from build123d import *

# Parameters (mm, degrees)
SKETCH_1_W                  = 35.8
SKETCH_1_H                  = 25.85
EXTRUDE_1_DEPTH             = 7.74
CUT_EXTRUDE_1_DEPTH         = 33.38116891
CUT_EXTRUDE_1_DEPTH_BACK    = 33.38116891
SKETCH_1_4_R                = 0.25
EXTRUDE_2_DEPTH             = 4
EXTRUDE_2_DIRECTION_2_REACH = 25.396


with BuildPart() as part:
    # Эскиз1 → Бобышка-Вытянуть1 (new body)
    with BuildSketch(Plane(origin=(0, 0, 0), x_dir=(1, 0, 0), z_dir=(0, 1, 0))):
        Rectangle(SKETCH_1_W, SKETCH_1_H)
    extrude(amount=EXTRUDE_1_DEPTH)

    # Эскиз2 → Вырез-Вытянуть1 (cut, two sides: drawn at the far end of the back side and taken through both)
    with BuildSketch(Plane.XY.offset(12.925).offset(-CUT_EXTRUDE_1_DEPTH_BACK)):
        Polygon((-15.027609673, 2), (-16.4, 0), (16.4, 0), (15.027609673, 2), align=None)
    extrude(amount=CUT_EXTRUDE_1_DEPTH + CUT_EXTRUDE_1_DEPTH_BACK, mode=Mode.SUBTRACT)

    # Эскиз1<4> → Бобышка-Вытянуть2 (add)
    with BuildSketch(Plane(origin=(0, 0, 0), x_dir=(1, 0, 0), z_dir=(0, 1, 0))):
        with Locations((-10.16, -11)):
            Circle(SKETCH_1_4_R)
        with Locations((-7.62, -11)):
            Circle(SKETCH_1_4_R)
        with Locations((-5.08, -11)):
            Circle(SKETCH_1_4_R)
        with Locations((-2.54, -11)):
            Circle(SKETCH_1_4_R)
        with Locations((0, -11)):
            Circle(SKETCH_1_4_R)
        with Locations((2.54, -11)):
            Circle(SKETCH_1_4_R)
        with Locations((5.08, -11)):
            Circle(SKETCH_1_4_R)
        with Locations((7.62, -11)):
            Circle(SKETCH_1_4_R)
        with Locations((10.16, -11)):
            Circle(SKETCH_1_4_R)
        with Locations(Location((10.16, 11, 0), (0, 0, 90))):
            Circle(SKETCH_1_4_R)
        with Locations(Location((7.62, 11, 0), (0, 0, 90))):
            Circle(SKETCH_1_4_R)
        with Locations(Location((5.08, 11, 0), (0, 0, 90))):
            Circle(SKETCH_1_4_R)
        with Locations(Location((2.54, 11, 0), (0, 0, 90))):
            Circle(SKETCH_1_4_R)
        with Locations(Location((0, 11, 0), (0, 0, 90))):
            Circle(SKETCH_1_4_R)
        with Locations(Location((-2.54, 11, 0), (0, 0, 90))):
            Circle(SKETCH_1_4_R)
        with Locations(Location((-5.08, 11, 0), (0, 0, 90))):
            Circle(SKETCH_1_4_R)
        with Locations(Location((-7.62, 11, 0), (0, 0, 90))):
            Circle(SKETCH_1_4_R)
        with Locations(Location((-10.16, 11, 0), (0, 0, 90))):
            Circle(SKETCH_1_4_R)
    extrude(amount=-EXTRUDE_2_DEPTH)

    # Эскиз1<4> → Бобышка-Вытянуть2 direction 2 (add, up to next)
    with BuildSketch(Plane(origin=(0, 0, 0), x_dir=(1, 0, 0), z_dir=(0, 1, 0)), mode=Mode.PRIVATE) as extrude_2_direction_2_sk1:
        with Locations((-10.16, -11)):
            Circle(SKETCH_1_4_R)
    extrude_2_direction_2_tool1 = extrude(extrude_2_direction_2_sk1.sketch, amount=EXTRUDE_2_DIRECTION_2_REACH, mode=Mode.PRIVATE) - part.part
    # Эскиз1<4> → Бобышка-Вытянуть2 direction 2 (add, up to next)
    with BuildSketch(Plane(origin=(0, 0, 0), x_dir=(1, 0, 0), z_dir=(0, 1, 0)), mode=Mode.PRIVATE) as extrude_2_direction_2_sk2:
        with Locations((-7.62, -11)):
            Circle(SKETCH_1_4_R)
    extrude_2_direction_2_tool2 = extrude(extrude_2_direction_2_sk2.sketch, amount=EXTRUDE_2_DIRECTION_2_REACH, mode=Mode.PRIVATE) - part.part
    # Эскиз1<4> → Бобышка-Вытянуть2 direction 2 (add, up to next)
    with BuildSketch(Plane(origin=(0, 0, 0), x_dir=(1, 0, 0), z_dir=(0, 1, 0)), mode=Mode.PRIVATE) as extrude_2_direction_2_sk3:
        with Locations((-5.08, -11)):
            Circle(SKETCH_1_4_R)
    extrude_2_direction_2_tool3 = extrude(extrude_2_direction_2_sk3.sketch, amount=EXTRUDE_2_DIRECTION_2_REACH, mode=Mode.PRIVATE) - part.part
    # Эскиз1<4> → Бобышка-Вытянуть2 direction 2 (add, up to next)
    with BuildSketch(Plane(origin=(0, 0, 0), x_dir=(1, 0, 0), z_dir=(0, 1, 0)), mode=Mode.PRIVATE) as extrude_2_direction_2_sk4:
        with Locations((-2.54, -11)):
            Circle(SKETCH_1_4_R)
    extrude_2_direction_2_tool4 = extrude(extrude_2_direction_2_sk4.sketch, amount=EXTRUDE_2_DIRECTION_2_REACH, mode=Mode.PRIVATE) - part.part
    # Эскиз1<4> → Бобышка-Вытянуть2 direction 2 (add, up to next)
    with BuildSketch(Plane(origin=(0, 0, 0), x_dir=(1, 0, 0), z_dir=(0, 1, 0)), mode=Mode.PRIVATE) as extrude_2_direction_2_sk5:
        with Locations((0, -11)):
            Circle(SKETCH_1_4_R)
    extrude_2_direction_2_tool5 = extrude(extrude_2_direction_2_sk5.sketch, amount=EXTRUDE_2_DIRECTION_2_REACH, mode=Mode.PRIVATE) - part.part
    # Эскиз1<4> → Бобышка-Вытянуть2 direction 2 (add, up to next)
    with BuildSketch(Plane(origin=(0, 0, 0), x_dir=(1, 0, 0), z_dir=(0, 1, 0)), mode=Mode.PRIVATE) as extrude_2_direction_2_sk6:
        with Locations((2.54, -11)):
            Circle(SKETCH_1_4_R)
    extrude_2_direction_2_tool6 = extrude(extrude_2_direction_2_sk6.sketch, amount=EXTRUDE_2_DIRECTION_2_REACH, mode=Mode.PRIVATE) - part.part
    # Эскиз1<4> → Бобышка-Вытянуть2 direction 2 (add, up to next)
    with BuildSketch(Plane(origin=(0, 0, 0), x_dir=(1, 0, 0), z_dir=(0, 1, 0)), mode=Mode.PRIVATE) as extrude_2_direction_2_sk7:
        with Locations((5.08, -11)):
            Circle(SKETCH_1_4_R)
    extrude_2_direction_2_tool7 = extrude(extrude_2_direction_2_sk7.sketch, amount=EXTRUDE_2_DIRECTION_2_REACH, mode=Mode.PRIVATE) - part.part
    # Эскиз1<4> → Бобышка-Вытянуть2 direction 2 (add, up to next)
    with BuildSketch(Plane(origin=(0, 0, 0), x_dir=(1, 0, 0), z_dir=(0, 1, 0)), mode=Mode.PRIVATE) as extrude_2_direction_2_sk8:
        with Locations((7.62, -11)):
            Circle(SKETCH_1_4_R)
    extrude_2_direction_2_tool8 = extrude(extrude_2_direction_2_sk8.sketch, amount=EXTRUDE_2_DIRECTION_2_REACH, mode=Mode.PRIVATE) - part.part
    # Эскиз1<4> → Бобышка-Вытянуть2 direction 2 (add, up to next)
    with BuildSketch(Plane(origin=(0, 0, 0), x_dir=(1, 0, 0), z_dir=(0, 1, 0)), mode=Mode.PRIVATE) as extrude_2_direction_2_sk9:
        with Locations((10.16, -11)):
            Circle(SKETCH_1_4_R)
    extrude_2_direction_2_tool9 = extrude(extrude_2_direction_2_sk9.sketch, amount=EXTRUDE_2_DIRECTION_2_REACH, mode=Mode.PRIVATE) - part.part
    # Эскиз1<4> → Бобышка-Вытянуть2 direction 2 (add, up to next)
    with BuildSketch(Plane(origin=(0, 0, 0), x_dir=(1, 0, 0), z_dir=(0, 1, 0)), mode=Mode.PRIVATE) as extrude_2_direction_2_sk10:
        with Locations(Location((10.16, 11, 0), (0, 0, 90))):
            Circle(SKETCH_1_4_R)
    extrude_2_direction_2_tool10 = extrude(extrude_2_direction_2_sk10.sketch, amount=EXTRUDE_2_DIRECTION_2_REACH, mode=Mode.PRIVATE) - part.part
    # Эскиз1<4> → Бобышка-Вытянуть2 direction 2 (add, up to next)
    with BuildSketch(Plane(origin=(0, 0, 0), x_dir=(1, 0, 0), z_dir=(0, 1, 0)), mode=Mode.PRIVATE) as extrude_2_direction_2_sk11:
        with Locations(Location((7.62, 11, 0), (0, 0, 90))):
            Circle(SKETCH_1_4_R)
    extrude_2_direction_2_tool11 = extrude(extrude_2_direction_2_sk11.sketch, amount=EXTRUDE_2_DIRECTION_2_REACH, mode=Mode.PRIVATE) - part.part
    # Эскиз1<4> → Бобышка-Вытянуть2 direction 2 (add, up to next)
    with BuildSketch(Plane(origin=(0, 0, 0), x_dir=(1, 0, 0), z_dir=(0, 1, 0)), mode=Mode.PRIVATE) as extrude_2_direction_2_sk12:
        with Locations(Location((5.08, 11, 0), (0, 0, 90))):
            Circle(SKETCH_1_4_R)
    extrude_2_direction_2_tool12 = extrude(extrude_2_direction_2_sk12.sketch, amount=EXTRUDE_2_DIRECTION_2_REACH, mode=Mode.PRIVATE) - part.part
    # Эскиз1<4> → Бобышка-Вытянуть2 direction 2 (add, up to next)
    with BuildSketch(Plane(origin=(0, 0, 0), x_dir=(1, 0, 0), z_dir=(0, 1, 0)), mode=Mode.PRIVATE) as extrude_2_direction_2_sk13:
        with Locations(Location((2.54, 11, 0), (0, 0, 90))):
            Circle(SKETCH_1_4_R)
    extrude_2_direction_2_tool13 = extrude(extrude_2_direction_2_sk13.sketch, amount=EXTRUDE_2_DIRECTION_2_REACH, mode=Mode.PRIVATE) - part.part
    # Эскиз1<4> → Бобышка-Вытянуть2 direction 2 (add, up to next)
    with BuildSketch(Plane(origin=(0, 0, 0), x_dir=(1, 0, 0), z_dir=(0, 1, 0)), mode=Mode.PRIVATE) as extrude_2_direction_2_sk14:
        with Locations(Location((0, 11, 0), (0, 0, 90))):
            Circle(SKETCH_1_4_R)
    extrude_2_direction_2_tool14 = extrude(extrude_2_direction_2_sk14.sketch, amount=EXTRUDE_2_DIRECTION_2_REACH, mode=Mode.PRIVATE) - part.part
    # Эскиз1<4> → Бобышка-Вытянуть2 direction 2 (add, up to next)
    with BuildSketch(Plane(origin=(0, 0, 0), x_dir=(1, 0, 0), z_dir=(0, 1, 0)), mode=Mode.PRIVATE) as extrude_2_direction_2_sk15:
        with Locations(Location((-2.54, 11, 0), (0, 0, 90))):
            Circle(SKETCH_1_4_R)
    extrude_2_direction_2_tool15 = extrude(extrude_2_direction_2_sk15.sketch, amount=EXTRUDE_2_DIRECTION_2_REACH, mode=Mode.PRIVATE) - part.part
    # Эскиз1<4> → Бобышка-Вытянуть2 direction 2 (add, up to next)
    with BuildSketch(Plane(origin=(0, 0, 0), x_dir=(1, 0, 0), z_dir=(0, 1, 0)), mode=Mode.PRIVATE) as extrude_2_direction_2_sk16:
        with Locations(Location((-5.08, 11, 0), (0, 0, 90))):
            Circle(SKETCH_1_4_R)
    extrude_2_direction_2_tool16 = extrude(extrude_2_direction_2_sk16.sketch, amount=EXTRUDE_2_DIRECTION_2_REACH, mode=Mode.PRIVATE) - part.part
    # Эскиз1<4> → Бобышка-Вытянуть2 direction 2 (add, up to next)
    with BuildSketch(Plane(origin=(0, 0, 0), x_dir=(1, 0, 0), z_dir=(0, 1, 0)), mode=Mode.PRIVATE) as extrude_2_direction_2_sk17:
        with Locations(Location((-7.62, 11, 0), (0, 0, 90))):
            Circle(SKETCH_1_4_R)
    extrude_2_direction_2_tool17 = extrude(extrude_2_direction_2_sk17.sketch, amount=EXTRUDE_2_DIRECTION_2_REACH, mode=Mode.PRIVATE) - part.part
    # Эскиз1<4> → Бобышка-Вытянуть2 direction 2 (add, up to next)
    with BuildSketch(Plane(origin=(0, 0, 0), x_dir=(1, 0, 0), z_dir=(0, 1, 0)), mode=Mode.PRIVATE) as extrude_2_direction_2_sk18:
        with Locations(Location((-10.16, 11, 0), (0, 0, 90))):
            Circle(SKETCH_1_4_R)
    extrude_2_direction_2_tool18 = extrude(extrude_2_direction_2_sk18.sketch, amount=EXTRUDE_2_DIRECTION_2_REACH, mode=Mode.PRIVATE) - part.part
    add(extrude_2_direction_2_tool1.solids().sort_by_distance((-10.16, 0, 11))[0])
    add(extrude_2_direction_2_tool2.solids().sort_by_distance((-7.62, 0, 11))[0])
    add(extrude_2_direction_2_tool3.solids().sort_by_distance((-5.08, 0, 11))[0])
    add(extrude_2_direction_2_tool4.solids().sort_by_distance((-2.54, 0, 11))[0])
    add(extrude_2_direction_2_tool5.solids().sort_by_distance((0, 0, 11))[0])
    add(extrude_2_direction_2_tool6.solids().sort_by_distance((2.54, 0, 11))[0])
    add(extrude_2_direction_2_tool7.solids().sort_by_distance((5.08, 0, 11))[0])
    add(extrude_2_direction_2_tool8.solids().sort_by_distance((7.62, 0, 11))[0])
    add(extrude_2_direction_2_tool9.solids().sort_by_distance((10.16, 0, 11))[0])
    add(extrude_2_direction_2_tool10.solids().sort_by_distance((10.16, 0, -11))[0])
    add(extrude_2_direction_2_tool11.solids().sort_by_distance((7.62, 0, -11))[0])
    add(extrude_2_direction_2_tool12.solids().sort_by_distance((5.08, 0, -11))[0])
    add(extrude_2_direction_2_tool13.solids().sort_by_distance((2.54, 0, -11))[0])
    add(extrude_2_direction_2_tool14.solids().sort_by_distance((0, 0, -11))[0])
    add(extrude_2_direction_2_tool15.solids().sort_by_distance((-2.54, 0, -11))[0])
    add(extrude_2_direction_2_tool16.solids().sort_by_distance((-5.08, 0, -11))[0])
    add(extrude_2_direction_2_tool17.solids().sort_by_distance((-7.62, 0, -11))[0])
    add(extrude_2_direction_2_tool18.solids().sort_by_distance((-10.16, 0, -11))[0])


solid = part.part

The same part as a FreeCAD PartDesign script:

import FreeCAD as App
import Part
import Sketcher

V = App.Vector
Q = App.Units.Quantity


def add_polygon(sketch, points):
    """Adds a closed chain of lines whose ends are joined by coincident constraints."""
    first, n = sketch.GeometryCount, len(points)
    for a, b in zip(points, points[1:] + points[:1]):
        sketch.addGeometry(Part.LineSegment(App.Vector(*a, 0), App.Vector(*b, 0)), False)
    for i in range(n):
        sketch.addConstraint(Sketcher.Constraint("Coincident", first + i, 2, first + (i + 1) % n, 1))

doc = App.newDocument("Part")
params = doc.addObject("Spreadsheet::Sheet", "Params")
for row, (alias, value) in enumerate([
    ("sketch1_width", "35.8 mm"),
    ("sketch1_height", "25.85 mm"),
    ("pad1_length", "7.74 mm"),
    ("sketch2_width", "32.8 mm"),
    ("sketch3_diameter", "0.5 mm"),
    ("pad2_length", "4 mm"),
    ("sketch4_diameter", "0.5 mm"),
    ("sketch5_diameter", "0.5 mm"),
    ("sketch6_diameter", "0.5 mm"),
    ("sketch7_diameter", "0.5 mm"),
    ("sketch8_diameter", "0.5 mm"),
    ("sketch9_diameter", "0.5 mm"),
    ("sketch10_diameter", "0.5 mm"),
    ("sketch11_diameter", "0.5 mm"),
    ("sketch12_diameter", "0.5 mm"),
    ("sketch13_diameter", "0.5 mm"),
    ("sketch14_diameter", "0.5 mm"),
    ("sketch15_diameter", "0.5 mm"),
    ("sketch16_diameter", "0.5 mm"),
    ("sketch17_diameter", "0.5 mm"),
    ("sketch18_diameter", "0.5 mm"),
    ("sketch19_diameter", "0.5 mm"),
    ("sketch20_diameter", "0.5 mm"),
    ("sketch21_diameter", "0.5 mm"),
], start=1):
    params.set(f"A{row}", alias)
    params.set(f"B{row}", "=" + value)
    params.setAlias(f"B{row}", alias)

body = doc.addObject("PartDesign::Body", "Body")
body.AllowCompound = True

# Sketch on XZ plane
sketch1 = body.newObject("Sketcher::SketchObject", "Sketch")
sketch1.AttachmentSupport = (doc.getObject("XZ_Plane"), [""])
sketch1.MapMode = "FlatFace"
add_polygon(sketch1, [(-17.9, -12.925), (-17.9, 12.925), (17.9, 12.925), (17.9, -12.925)])  # lines 0-3
sketch1.addConstraint([
    Sketcher.Constraint("Vertical", 0),
    Sketcher.Constraint("Horizontal", 1),
    Sketcher.Constraint("Vertical", 2),
    Sketcher.Constraint("Horizontal", 3),
    Sketcher.Constraint("Symmetric", 0, 2, 2, 2, -1, 1),
    Sketcher.Constraint("DistanceX", 1, 1, 1, 2, Q("35.8 mm")),
    Sketcher.Constraint("DistanceY", 0, 1, 0, 2, Q("25.85 mm")),
])
sketch1.setExpression("Constraints[9]", "Params.sketch1_width")
sketch1.setExpression("Constraints[10]", "Params.sketch1_height")
pad1 = body.newObject("PartDesign::Pad", "Pad")
pad1.Profile = sketch1
pad1.setExpression("Length", "Params.pad1_length")
pad1.Reversed = True

# Sketch on XY plane
sketch2 = body.newObject("Sketcher::SketchObject", "Sketch001")
sketch2.AttachmentSupport = (doc.getObject("XY_Plane"), [""])
sketch2.MapMode = "FlatFace"
sketch2.AttachmentOffset = App.Placement(V(0, 0, 12.925), App.Rotation())
add_polygon(sketch2, [(-15.02761, 2), (-16.4, 0), (16.4, 0), (15.02761, 2)])  # lines 0-3
sketch2.addConstraint([
    Sketcher.Constraint("Horizontal", 1),
    Sketcher.Constraint("Horizontal", 3),
    Sketcher.Constraint("Symmetric", 0, 2, 1, 2, -1, 1),
    Sketcher.Constraint("Equal", 0, 2),
    Sketcher.Constraint("DistanceX", 1, 1, 1, 2, Q("32.8 mm")),
    Sketcher.Constraint("DistanceY", -1, 1, 2, 2, Q("2 mm")),
    Sketcher.Constraint("DistanceX", 3, 2, 3, 1, Q("30.055219 mm")),
])
sketch2.setExpression("Constraints[8]", "Params.sketch2_width")
pocket1 = body.newObject("PartDesign::Pocket", "Pocket")
pocket1.Profile = sketch2
pocket1.Type = "ThroughAll"
pocket1.Midplane = True

# Sketch on XZ plane
sketch3 = body.newObject("Sketcher::SketchObject", "Sketch002")
sketch3.AttachmentSupport = (doc.getObject("XZ_Plane"), [""])
sketch3.MapMode = "FlatFace"
sketch3.addGeometry([
    Part.Circle(V(-10.16, 11, 0), V(0, 0, 1), 0.25),  # 0
    Part.Circle(V(-7.62, 11, 0), V(0, 0, 1), 0.25),  # 1
    Part.Circle(V(-5.08, 11, 0), V(0, 0, 1), 0.25),  # 2
    Part.Circle(V(-2.54, 11, 0), V(0, 0, 1), 0.25),  # 3
    Part.Circle(V(0, 11, 0), V(0, 0, 1), 0.25),  # 4
    Part.Circle(V(2.54, 11, 0), V(0, 0, 1), 0.25),  # 5
    Part.Circle(V(5.08, 11, 0), V(0, 0, 1), 0.25),  # 6
    Part.Circle(V(7.62, 11, 0), V(0, 0, 1), 0.25),  # 7
    Part.Circle(V(10.16, 11, 0), V(0, 0, 1), 0.25),  # 8
    Part.Circle(V(10.16, -11, 0), V(0, 0, 1), 0.25),  # 9
    Part.Circle(V(7.62, -11, 0), V(0, 0, 1), 0.25),  # 10
    Part.Circle(V(5.08, -11, 0), V(0, 0, 1), 0.25),  # 11
    Part.Circle(V(2.54, -11, 0), V(0, 0, 1), 0.25),  # 12
    Part.Circle(V(0, -11, 0), V(0, 0, 1), 0.25),  # 13
    Part.Circle(V(-2.54, -11, 0), V(0, 0, 1), 0.25),  # 14
    Part.Circle(V(-5.08, -11, 0), V(0, 0, 1), 0.25),  # 15
    Part.Circle(V(-7.62, -11, 0), V(0, 0, 1), 0.25),  # 16
    Part.Circle(V(-10.16, -11, 0), V(0, 0, 1), 0.25),  # 17
], False)
sketch3.addConstraint([
    Sketcher.Constraint("Equal", 0, 1),
    Sketcher.Constraint("Equal", 1, 2),
    Sketcher.Constraint("Equal", 2, 3),
    Sketcher.Constraint("Equal", 3, 4),
    Sketcher.Constraint("Equal", 4, 5),
    Sketcher.Constraint("Equal", 5, 6),
    Sketcher.Constraint("Equal", 6, 7),
    Sketcher.Constraint("Equal", 7, 8),
    Sketcher.Constraint("Equal", 8, 9),
    Sketcher.Constraint("Equal", 9, 10),
    Sketcher.Constraint("Equal", 10, 11),
    Sketcher.Constraint("Equal", 11, 12),
    Sketcher.Constraint("Equal", 12, 13),
    Sketcher.Constraint("Equal", 13, 14),
    Sketcher.Constraint("Equal", 14, 15),
    Sketcher.Constraint("Equal", 15, 16),
    Sketcher.Constraint("Equal", 16, 17),
    Sketcher.Constraint("Symmetric", 0, 3, 9, 3, -1, 1),
    Sketcher.Constraint("Symmetric", 1, 3, 10, 3, -1, 1),
    Sketcher.Constraint("Symmetric", 2, 3, 11, 3, -1, 1),
    Sketcher.Constraint("Symmetric", 3, 3, 12, 3, -1, 1),
    Sketcher.Constraint("Symmetric", 4, 3, 13, 3, -1, 1),
    Sketcher.Constraint("Symmetric", 5, 3, 14, 3, -1, 1),
    Sketcher.Constraint("Symmetric", 6, 3, 15, 3, -1, 1),
    Sketcher.Constraint("Symmetric", 7, 3, 16, 3, -1, 1),
    Sketcher.Constraint("Symmetric", 8, 3, 17, 3, -1, 1),
    Sketcher.Constraint("Symmetric", 3, 3, 5, 3, -2),
    Sketcher.Constraint("Symmetric", 2, 3, 6, 3, -2),
    Sketcher.Constraint("Symmetric", 1, 3, 7, 3, -2),
    Sketcher.Constraint("Symmetric", 0, 3, 8, 3, -2),
    Sketcher.Constraint("PointOnObject", 4, 3, -2),
    Sketcher.Constraint("Horizontal", 0, 3, 1, 3),
    Sketcher.Constraint("Horizontal", 1, 3, 2, 3),
    Sketcher.Constraint("Horizontal", 2, 3, 3, 3),
    Sketcher.Constraint("Horizontal", 3, 3, 4, 3),
    Sketcher.Constraint("Diameter", 0, Q("0.5 mm")),
    Sketcher.Constraint("DistanceY", -1, 1, 0, 3, Q("11 mm")),
    Sketcher.Constraint("DistanceX", 0, 3, 5, 3, Q("12.7 mm")),
    Sketcher.Constraint("DistanceX", 1, 3, 6, 3, Q("12.7 mm")),
    Sketcher.Constraint("DistanceX", 0, 3, -1, 1, Q("10.16 mm")),
    Sketcher.Constraint("DistanceX", 1, 3, -1, 1, Q("7.62 mm")),
])
sketch3.setExpression("Constraints[35]", "Params.sketch3_diameter")
pad2 = body.newObject("PartDesign::Pad", "Pad001")
pad2.Profile = sketch3
pad2.setExpression("Length", "Params.pad2_length")

# Sketch on XZ plane
sketch4 = body.newObject("Sketcher::SketchObject", "Sketch003")
sketch4.AttachmentSupport = (doc.getObject("XZ_Plane"), [""])
sketch4.MapMode = "FlatFace"
sketch4.addGeometry(Part.Circle(V(-10.16, 11, 0), V(0, 0, 1), 0.25), False)
sketch4.addConstraint([
    Sketcher.Constraint("Diameter", 0, Q("0.5 mm")),
    Sketcher.Constraint("DistanceY", -1, 1, 0, 3, Q("11 mm")),
    Sketcher.Constraint("DistanceX", 0, 3, -1, 1, Q("10.16 mm")),
])
sketch4.setExpression("Constraints[0]", "Params.sketch4_diameter")
pad3 = body.newObject("PartDesign::Pad", "Pad002")
pad3.Profile = sketch4
pad3.Type = "UpToFirst"
pad3.Reversed = True

# Sketch on XZ plane
sketch5 = body.newObject("Sketcher::SketchObject", "Sketch004")
sketch5.AttachmentSupport = (doc.getObject("XZ_Plane"), [""])
sketch5.MapMode = "FlatFace"
sketch5.addGeometry(Part.Circle(V(-7.62, 11, 0), V(0, 0, 1), 0.25), False)
sketch5.addConstraint([
    Sketcher.Constraint("Diameter", 0, Q("0.5 mm")),
    Sketcher.Constraint("DistanceY", -1, 1, 0, 3, Q("11 mm")),
    Sketcher.Constraint("DistanceX", 0, 3, -1, 1, Q("7.62 mm")),
])
sketch5.setExpression("Constraints[0]", "Params.sketch5_diameter")
pad4 = body.newObject("PartDesign::Pad", "Pad003")
pad4.Profile = sketch5
pad4.Type = "UpToFirst"
pad4.Reversed = True

# Sketch on XZ plane
sketch6 = body.newObject("Sketcher::SketchObject", "Sketch005")
sketch6.AttachmentSupport = (doc.getObject("XZ_Plane"), [""])
sketch6.MapMode = "FlatFace"
sketch6.addGeometry(Part.Circle(V(-5.08, 11, 0), V(0, 0, 1), 0.25), False)
sketch6.addConstraint([
    Sketcher.Constraint("Diameter", 0, Q("0.5 mm")),
    Sketcher.Constraint("DistanceY", -1, 1, 0, 3, Q("11 mm")),
    Sketcher.Constraint("DistanceX", 0, 3, -1, 1, Q("5.08 mm")),
])
sketch6.setExpression("Constraints[0]", "Params.sketch6_diameter")
pad5 = body.newObject("PartDesign::Pad", "Pad004")
pad5.Profile = sketch6
pad5.Type = "UpToFirst"
pad5.Reversed = True

# Sketch on XZ plane
sketch7 = body.newObject("Sketcher::SketchObject", "Sketch006")
sketch7.AttachmentSupport = (doc.getObject("XZ_Plane"), [""])
sketch7.MapMode = "FlatFace"
sketch7.addGeometry(Part.Circle(V(-2.54, 11, 0), V(0, 0, 1), 0.25), False)
sketch7.addConstraint([
    Sketcher.Constraint("Diameter", 0, Q("0.5 mm")),
    Sketcher.Constraint("DistanceY", -1, 1, 0, 3, Q("11 mm")),
    Sketcher.Constraint("DistanceX", 0, 3, -1, 1, Q("2.54 mm")),
])
sketch7.setExpression("Constraints[0]", "Params.sketch7_diameter")
pad6 = body.newObject("PartDesign::Pad", "Pad005")
pad6.Profile = sketch7
pad6.Type = "UpToFirst"
pad6.Reversed = True

# Sketch on XZ plane
sketch8 = body.newObject("Sketcher::SketchObject", "Sketch007")
sketch8.AttachmentSupport = (doc.getObject("XZ_Plane"), [""])
sketch8.MapMode = "FlatFace"
sketch8.addGeometry(Part.Circle(V(0, 11, 0), V(0, 0, 1), 0.25), False)
sketch8.addConstraint([
    Sketcher.Constraint("PointOnObject", 0, 3, -2),
    Sketcher.Constraint("Diameter", 0, Q("0.5 mm")),
    Sketcher.Constraint("DistanceY", -1, 1, 0, 3, Q("11 mm")),
])
sketch8.setExpression("Constraints[1]", "Params.sketch8_diameter")
pad7 = body.newObject("PartDesign::Pad", "Pad006")
pad7.Profile = sketch8
pad7.Type = "UpToFirst"
pad7.Reversed = True

# Sketch on XZ plane
sketch9 = body.newObject("Sketcher::SketchObject", "Sketch008")
sketch9.AttachmentSupport = (doc.getObject("XZ_Plane"), [""])
sketch9.MapMode = "FlatFace"
sketch9.addGeometry(Part.Circle(V(2.54, 11, 0), V(0, 0, 1), 0.25), False)
sketch9.addConstraint([
    Sketcher.Constraint("Diameter", 0, Q("0.5 mm")),
    Sketcher.Constraint("DistanceY", -1, 1, 0, 3, Q("11 mm")),
    Sketcher.Constraint("DistanceX", -1, 1, 0, 3, Q("2.54 mm")),
])
sketch9.setExpression("Constraints[0]", "Params.sketch9_diameter")
pad8 = body.newObject("PartDesign::Pad", "Pad007")
pad8.Profile = sketch9
pad8.Type = "UpToFirst"
pad8.Reversed = True

# Sketch on XZ plane
sketch10 = body.newObject("Sketcher::SketchObject", "Sketch009")
sketch10.AttachmentSupport = (doc.getObject("XZ_Plane"), [""])
sketch10.MapMode = "FlatFace"
sketch10.addGeometry(Part.Circle(V(5.08, 11, 0), V(0, 0, 1), 0.25), False)
sketch10.addConstraint([
    Sketcher.Constraint("Diameter", 0, Q("0.5 mm")),
    Sketcher.Constraint("DistanceY", -1, 1, 0, 3, Q("11 mm")),
    Sketcher.Constraint("DistanceX", -1, 1, 0, 3, Q("5.08 mm")),
])
sketch10.setExpression("Constraints[0]", "Params.sketch10_diameter")
pad9 = body.newObject("PartDesign::Pad", "Pad008")
pad9.Profile = sketch10
pad9.Type = "UpToFirst"
pad9.Reversed = True

# Sketch on XZ plane
sketch11 = body.newObject("Sketcher::SketchObject", "Sketch010")
sketch11.AttachmentSupport = (doc.getObject("XZ_Plane"), [""])
sketch11.MapMode = "FlatFace"
sketch11.addGeometry(Part.Circle(V(7.62, 11, 0), V(0, 0, 1), 0.25), False)
sketch11.addConstraint([
    Sketcher.Constraint("Diameter", 0, Q("0.5 mm")),
    Sketcher.Constraint("DistanceY", -1, 1, 0, 3, Q("11 mm")),
    Sketcher.Constraint("DistanceX", -1, 1, 0, 3, Q("7.62 mm")),
])
sketch11.setExpression("Constraints[0]", "Params.sketch11_diameter")
pad10 = body.newObject("PartDesign::Pad", "Pad009")
pad10.Profile = sketch11
pad10.Type = "UpToFirst"
pad10.Reversed = True

# Sketch on XZ plane
sketch12 = body.newObject("Sketcher::SketchObject", "Sketch011")
sketch12.AttachmentSupport = (doc.getObject("XZ_Plane"), [""])
sketch12.MapMode = "FlatFace"
sketch12.addGeometry(Part.Circle(V(10.16, 11, 0), V(0, 0, 1), 0.25), False)
sketch12.addConstraint([
    Sketcher.Constraint("Diameter", 0, Q("0.5 mm")),
    Sketcher.Constraint("DistanceY", -1, 1, 0, 3, Q("11 mm")),
    Sketcher.Constraint("DistanceX", -1, 1, 0, 3, Q("10.16 mm")),
])
sketch12.setExpression("Constraints[0]", "Params.sketch12_diameter")
pad11 = body.newObject("PartDesign::Pad", "Pad010")
pad11.Profile = sketch12
pad11.Type = "UpToFirst"
pad11.Reversed = True

# Sketch on XZ plane
sketch13 = body.newObject("Sketcher::SketchObject", "Sketch012")
sketch13.AttachmentSupport = (doc.getObject("XZ_Plane"), [""])
sketch13.MapMode = "FlatFace"
sketch13.addGeometry(Part.Circle(V(10.16, -11, 0), V(0, 0, 1), 0.25), False)
sketch13.addConstraint([
    Sketcher.Constraint("Diameter", 0, Q("0.5 mm")),
    Sketcher.Constraint("DistanceY", 0, 3, -1, 1, Q("11 mm")),
    Sketcher.Constraint("DistanceX", -1, 1, 0, 3, Q("10.16 mm")),
])
sketch13.setExpression("Constraints[0]", "Params.sketch13_diameter")
pad12 = body.newObject("PartDesign::Pad", "Pad011")
pad12.Profile = sketch13
pad12.Type = "UpToFirst"
pad12.Reversed = True

# Sketch on XZ plane
sketch14 = body.newObject("Sketcher::SketchObject", "Sketch013")
sketch14.AttachmentSupport = (doc.getObject("XZ_Plane"), [""])
sketch14.MapMode = "FlatFace"
sketch14.addGeometry(Part.Circle(V(7.62, -11, 0), V(0, 0, 1), 0.25), False)
sketch14.addConstraint([
    Sketcher.Constraint("Diameter", 0, Q("0.5 mm")),
    Sketcher.Constraint("DistanceY", 0, 3, -1, 1, Q("11 mm")),
    Sketcher.Constraint("DistanceX", -1, 1, 0, 3, Q("7.62 mm")),
])
sketch14.setExpression("Constraints[0]", "Params.sketch14_diameter")
pad13 = body.newObject("PartDesign::Pad", "Pad012")
pad13.Profile = sketch14
pad13.Type = "UpToFirst"
pad13.Reversed = True

# Sketch on XZ plane
sketch15 = body.newObject("Sketcher::SketchObject", "Sketch014")
sketch15.AttachmentSupport = (doc.getObject("XZ_Plane"), [""])
sketch15.MapMode = "FlatFace"
sketch15.addGeometry(Part.Circle(V(5.08, -11, 0), V(0, 0, 1), 0.25), False)
sketch15.addConstraint([
    Sketcher.Constraint("Diameter", 0, Q("0.5 mm")),
    Sketcher.Constraint("DistanceY", 0, 3, -1, 1, Q("11 mm")),
    Sketcher.Constraint("DistanceX", -1, 1, 0, 3, Q("5.08 mm")),
])
sketch15.setExpression("Constraints[0]", "Params.sketch15_diameter")
pad14 = body.newObject("PartDesign::Pad", "Pad013")
pad14.Profile = sketch15
pad14.Type = "UpToFirst"
pad14.Reversed = True

# Sketch on XZ plane
sketch16 = body.newObject("Sketcher::SketchObject", "Sketch015")
sketch16.AttachmentSupport = (doc.getObject("XZ_Plane"), [""])
sketch16.MapMode = "FlatFace"
sketch16.addGeometry(Part.Circle(V(2.54, -11, 0), V(0, 0, 1), 0.25), False)
sketch16.addConstraint([
    Sketcher.Constraint("Diameter", 0, Q("0.5 mm")),
    Sketcher.Constraint("DistanceY", 0, 3, -1, 1, Q("11 mm")),
    Sketcher.Constraint("DistanceX", -1, 1, 0, 3, Q("2.54 mm")),
])
sketch16.setExpression("Constraints[0]", "Params.sketch16_diameter")
pad15 = body.newObject("PartDesign::Pad", "Pad014")
pad15.Profile = sketch16
pad15.Type = "UpToFirst"
pad15.Reversed = True

# Sketch on XZ plane
sketch17 = body.newObject("Sketcher::SketchObject", "Sketch016")
sketch17.AttachmentSupport = (doc.getObject("XZ_Plane"), [""])
sketch17.MapMode = "FlatFace"
sketch17.addGeometry(Part.Circle(V(0, -11, 0), V(0, 0, 1), 0.25), False)
sketch17.addConstraint([
    Sketcher.Constraint("PointOnObject", 0, 3, -2),
    Sketcher.Constraint("Diameter", 0, Q("0.5 mm")),
    Sketcher.Constraint("DistanceY", 0, 3, -1, 1, Q("11 mm")),
])
sketch17.setExpression("Constraints[1]", "Params.sketch17_diameter")
pad16 = body.newObject("PartDesign::Pad", "Pad015")
pad16.Profile = sketch17
pad16.Type = "UpToFirst"
pad16.Reversed = True

# Sketch on XZ plane
sketch18 = body.newObject("Sketcher::SketchObject", "Sketch017")
sketch18.AttachmentSupport = (doc.getObject("XZ_Plane"), [""])
sketch18.MapMode = "FlatFace"
sketch18.addGeometry(Part.Circle(V(-2.54, -11, 0), V(0, 0, 1), 0.25), False)
sketch18.addConstraint([
    Sketcher.Constraint("Diameter", 0, Q("0.5 mm")),
    Sketcher.Constraint("DistanceY", 0, 3, -1, 1, Q("11 mm")),
    Sketcher.Constraint("DistanceX", 0, 3, -1, 1, Q("2.54 mm")),
])
sketch18.setExpression("Constraints[0]", "Params.sketch18_diameter")
pad17 = body.newObject("PartDesign::Pad", "Pad016")
pad17.Profile = sketch18
pad17.Type = "UpToFirst"
pad17.Reversed = True

# Sketch on XZ plane
sketch19 = body.newObject("Sketcher::SketchObject", "Sketch018")
sketch19.AttachmentSupport = (doc.getObject("XZ_Plane"), [""])
sketch19.MapMode = "FlatFace"
sketch19.addGeometry(Part.Circle(V(-5.08, -11, 0), V(0, 0, 1), 0.25), False)
sketch19.addConstraint([
    Sketcher.Constraint("Diameter", 0, Q("0.5 mm")),
    Sketcher.Constraint("DistanceY", 0, 3, -1, 1, Q("11 mm")),
    Sketcher.Constraint("DistanceX", 0, 3, -1, 1, Q("5.08 mm")),
])
sketch19.setExpression("Constraints[0]", "Params.sketch19_diameter")
pad18 = body.newObject("PartDesign::Pad", "Pad017")
pad18.Profile = sketch19
pad18.Type = "UpToFirst"
pad18.Reversed = True

# Sketch on XZ plane
sketch20 = body.newObject("Sketcher::SketchObject", "Sketch019")
sketch20.AttachmentSupport = (doc.getObject("XZ_Plane"), [""])
sketch20.MapMode = "FlatFace"
sketch20.addGeometry(Part.Circle(V(-7.62, -11, 0), V(0, 0, 1), 0.25), False)
sketch20.addConstraint([
    Sketcher.Constraint("Diameter", 0, Q("0.5 mm")),
    Sketcher.Constraint("DistanceY", 0, 3, -1, 1, Q("11 mm")),
    Sketcher.Constraint("DistanceX", 0, 3, -1, 1, Q("7.62 mm")),
])
sketch20.setExpression("Constraints[0]", "Params.sketch20_diameter")
pad19 = body.newObject("PartDesign::Pad", "Pad018")
pad19.Profile = sketch20
pad19.Type = "UpToFirst"
pad19.Reversed = True

# Sketch on XZ plane
sketch21 = body.newObject("Sketcher::SketchObject", "Sketch020")
sketch21.AttachmentSupport = (doc.getObject("XZ_Plane"), [""])
sketch21.MapMode = "FlatFace"
sketch21.addGeometry(Part.Circle(V(-10.16, -11, 0), V(0, 0, 1), 0.25), False)
sketch21.addConstraint([
    Sketcher.Constraint("Diameter", 0, Q("0.5 mm")),
    Sketcher.Constraint("DistanceY", 0, 3, -1, 1, Q("11 mm")),
    Sketcher.Constraint("DistanceX", 0, 3, -1, 1, Q("10.16 mm")),
])
sketch21.setExpression("Constraints[0]", "Params.sketch21_diameter")
pad20 = body.newObject("PartDesign::Pad", "Pad019")
pad20.Profile = sketch21
pad20.Type = "UpToFirst"
pad20.Reversed = True

doc.recompute()
